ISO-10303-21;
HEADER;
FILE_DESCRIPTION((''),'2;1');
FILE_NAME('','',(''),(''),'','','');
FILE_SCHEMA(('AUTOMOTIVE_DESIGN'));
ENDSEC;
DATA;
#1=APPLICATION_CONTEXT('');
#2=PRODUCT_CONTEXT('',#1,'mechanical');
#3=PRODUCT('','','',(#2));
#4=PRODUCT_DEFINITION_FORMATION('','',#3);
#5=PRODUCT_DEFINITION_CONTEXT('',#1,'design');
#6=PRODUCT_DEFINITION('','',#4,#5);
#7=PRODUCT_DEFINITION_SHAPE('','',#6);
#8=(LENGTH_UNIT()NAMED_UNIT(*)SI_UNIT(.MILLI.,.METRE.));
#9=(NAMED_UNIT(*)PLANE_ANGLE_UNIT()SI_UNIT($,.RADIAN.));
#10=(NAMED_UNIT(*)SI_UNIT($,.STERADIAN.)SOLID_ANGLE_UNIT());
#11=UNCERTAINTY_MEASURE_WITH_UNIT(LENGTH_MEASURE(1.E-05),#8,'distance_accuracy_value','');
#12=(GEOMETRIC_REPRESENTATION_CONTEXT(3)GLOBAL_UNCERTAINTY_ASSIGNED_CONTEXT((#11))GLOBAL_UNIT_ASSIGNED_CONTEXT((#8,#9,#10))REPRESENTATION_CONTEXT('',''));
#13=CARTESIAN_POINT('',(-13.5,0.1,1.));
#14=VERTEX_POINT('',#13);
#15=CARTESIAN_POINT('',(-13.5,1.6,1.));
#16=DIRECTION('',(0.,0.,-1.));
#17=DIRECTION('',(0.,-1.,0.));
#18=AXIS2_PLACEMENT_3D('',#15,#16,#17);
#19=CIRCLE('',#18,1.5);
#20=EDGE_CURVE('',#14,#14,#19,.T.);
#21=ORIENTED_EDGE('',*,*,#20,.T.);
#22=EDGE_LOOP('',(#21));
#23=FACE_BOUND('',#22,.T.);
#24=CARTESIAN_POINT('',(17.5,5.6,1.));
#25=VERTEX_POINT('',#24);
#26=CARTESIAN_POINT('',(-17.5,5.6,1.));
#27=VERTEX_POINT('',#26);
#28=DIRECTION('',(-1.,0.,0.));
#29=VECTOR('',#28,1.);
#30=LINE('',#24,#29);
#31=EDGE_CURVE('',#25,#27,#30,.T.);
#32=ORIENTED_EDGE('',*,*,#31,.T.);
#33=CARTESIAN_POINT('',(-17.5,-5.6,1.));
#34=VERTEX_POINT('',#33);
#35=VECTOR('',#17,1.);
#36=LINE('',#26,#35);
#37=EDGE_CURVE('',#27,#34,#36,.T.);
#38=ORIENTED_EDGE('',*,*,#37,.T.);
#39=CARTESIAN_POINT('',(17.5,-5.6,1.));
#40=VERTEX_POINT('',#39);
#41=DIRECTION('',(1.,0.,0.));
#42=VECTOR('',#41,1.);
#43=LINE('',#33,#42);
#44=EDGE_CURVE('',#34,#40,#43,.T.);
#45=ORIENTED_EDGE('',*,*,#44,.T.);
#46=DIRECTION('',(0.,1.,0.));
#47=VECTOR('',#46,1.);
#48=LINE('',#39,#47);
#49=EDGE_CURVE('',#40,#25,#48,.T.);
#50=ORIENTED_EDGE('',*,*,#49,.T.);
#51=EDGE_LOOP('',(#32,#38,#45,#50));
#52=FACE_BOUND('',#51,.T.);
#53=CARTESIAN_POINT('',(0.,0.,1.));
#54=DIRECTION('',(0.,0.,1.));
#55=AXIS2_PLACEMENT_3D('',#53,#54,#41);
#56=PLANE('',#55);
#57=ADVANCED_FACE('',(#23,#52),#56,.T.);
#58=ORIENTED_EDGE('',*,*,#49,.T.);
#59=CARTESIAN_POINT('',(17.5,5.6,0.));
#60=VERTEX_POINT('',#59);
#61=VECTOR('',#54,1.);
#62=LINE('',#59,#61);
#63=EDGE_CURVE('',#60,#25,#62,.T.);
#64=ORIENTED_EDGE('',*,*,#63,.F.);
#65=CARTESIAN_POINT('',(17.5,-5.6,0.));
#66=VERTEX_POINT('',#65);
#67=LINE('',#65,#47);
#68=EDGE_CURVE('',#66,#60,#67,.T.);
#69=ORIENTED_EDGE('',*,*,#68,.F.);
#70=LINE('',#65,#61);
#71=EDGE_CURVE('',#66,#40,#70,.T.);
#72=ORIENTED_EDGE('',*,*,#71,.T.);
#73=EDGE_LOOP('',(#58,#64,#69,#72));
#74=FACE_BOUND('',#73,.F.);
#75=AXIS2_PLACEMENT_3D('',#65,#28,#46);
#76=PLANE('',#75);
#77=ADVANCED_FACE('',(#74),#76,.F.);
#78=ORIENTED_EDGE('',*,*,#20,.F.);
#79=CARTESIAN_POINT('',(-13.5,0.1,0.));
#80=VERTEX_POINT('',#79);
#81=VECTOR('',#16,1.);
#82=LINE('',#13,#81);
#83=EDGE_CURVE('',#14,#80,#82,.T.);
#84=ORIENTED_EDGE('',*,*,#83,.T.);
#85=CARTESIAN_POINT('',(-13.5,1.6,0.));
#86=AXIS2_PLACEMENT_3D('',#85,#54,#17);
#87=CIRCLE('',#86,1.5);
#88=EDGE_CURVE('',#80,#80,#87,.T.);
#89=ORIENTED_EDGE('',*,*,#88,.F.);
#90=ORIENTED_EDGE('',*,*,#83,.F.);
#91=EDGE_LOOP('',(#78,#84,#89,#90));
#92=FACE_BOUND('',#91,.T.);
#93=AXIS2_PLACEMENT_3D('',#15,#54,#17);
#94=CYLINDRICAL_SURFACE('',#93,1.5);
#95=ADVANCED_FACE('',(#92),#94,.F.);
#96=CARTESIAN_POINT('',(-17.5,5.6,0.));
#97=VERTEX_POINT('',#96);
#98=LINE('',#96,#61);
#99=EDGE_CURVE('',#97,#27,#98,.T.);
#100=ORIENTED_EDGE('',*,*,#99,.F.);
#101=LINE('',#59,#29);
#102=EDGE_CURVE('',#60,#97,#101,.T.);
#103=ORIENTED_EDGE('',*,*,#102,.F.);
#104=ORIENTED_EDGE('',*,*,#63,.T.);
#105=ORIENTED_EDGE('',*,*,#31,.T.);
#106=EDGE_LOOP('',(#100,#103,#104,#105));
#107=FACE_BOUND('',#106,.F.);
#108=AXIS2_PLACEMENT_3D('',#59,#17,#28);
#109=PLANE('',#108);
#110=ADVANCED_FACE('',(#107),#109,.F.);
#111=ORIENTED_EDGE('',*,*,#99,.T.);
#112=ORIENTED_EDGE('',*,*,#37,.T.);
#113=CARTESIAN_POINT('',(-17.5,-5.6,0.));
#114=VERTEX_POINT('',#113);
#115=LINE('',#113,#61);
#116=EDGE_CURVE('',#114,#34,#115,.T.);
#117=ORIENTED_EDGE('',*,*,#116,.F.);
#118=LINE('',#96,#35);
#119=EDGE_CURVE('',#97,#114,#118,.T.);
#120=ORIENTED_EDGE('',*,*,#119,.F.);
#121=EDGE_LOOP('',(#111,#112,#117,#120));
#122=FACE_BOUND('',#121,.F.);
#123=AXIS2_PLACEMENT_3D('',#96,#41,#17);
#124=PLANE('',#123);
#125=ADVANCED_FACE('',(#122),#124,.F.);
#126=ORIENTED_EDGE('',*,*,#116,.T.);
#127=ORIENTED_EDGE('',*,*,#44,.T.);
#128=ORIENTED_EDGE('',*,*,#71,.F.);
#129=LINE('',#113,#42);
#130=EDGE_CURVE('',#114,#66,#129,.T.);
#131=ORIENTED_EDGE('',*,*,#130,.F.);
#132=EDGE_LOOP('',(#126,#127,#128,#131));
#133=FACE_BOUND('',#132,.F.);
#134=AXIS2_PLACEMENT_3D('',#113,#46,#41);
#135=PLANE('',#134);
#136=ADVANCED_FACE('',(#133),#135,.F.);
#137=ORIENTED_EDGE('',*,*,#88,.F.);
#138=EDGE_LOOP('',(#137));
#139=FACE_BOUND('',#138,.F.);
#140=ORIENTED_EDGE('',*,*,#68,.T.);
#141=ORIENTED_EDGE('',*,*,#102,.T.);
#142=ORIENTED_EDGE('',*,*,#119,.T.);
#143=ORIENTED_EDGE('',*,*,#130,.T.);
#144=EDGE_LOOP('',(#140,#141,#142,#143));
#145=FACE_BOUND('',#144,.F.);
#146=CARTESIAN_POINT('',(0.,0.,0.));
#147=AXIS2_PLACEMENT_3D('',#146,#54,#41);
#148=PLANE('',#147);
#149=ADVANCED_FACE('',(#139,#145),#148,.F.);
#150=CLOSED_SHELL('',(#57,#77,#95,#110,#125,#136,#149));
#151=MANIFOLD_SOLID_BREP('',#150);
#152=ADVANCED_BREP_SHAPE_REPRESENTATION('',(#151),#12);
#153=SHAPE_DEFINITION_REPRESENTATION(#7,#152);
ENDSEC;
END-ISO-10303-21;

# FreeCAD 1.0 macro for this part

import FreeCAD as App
import Part
import Sketcher
from FreeCAD import Vector


def add_polygon(sketch, points):
    """Adds a closed chain of lines whose ends are joined by coincident constraints."""
    first, n = sketch.GeometryCount, len(points)
    for a, b in zip(points, points[1:] + points[:1]):
        sketch.addGeometry(Part.LineSegment(App.Vector(*a, 0), App.Vector(*b, 0)), False)
    for i in range(n):
        sketch.addConstraint(Sketcher.Constraint("Coincident", first + i, 2, first + (i + 1) % n, 1))

doc = App.newDocument("Part")
body = doc.addObject("PartDesign::Body", "Body")

sketch1 = body.newObject("Sketcher::SketchObject", "Sketch")
sketch1.AttachmentSupport = (doc.getObject("XY_Plane"), [""])
sketch1.MapMode = "FlatFace"
add_polygon(sketch1, [(17.5, -5.6), (17.5, 5.6), (-17.5, 5.6), (-17.5, -5.6)])
sketch1.addConstraint(Sketcher.Constraint("Vertical", 0))
sketch1.addConstraint(Sketcher.Constraint("Horizontal", 1))
sketch1.addConstraint(Sketcher.Constraint("Vertical", 2))
sketch1.addConstraint(Sketcher.Constraint("Horizontal", 3))
sketch1.addConstraint(Sketcher.Constraint("Symmetric", 0, 2, 2, 2, -1, 1))
sketch1.addConstraint(Sketcher.Constraint("DistanceX", 1, 2, 1, 1, 35.0))
sketch1.addConstraint(Sketcher.Constraint("DistanceY", 0, 1, 0, 2, 11.2))
pad1 = body.newObject("PartDesign::Pad", "Pad")
pad1.Profile = sketch1
pad1.Length = 1

sketch2 = body.newObject("Sketcher::SketchObject", "Sketch001")
sketch2.AttachmentSupport = (doc.getObject("XY_Plane"), [""])
sketch2.MapMode = "FlatFace"
sketch2.AttachmentOffset = App.Placement(Vector(0, 0, 1), App.Rotation())
sketch2.addGeometry(Part.Circle(Vector(-13.5, 1.6, 0), Vector(0, 0, 1), 1.5), False)
sketch2.addConstraint(Sketcher.Constraint("Diameter", 0, 3.0))
sketch2.addConstraint(Sketcher.Constraint("DistanceX", 0, 3, -1, 1, 13.5))
sketch2.addConstraint(Sketcher.Constraint("DistanceY", -1, 1, 0, 3, 1.6))
doc.recompute()
hole = body.newObject("PartDesign::Hole", "Hole")
hole.Profile = sketch2
hole.ThreadType = "None"
hole.Diameter = 3
hole.DepthType = "ThroughAll"

doc.recompute()
